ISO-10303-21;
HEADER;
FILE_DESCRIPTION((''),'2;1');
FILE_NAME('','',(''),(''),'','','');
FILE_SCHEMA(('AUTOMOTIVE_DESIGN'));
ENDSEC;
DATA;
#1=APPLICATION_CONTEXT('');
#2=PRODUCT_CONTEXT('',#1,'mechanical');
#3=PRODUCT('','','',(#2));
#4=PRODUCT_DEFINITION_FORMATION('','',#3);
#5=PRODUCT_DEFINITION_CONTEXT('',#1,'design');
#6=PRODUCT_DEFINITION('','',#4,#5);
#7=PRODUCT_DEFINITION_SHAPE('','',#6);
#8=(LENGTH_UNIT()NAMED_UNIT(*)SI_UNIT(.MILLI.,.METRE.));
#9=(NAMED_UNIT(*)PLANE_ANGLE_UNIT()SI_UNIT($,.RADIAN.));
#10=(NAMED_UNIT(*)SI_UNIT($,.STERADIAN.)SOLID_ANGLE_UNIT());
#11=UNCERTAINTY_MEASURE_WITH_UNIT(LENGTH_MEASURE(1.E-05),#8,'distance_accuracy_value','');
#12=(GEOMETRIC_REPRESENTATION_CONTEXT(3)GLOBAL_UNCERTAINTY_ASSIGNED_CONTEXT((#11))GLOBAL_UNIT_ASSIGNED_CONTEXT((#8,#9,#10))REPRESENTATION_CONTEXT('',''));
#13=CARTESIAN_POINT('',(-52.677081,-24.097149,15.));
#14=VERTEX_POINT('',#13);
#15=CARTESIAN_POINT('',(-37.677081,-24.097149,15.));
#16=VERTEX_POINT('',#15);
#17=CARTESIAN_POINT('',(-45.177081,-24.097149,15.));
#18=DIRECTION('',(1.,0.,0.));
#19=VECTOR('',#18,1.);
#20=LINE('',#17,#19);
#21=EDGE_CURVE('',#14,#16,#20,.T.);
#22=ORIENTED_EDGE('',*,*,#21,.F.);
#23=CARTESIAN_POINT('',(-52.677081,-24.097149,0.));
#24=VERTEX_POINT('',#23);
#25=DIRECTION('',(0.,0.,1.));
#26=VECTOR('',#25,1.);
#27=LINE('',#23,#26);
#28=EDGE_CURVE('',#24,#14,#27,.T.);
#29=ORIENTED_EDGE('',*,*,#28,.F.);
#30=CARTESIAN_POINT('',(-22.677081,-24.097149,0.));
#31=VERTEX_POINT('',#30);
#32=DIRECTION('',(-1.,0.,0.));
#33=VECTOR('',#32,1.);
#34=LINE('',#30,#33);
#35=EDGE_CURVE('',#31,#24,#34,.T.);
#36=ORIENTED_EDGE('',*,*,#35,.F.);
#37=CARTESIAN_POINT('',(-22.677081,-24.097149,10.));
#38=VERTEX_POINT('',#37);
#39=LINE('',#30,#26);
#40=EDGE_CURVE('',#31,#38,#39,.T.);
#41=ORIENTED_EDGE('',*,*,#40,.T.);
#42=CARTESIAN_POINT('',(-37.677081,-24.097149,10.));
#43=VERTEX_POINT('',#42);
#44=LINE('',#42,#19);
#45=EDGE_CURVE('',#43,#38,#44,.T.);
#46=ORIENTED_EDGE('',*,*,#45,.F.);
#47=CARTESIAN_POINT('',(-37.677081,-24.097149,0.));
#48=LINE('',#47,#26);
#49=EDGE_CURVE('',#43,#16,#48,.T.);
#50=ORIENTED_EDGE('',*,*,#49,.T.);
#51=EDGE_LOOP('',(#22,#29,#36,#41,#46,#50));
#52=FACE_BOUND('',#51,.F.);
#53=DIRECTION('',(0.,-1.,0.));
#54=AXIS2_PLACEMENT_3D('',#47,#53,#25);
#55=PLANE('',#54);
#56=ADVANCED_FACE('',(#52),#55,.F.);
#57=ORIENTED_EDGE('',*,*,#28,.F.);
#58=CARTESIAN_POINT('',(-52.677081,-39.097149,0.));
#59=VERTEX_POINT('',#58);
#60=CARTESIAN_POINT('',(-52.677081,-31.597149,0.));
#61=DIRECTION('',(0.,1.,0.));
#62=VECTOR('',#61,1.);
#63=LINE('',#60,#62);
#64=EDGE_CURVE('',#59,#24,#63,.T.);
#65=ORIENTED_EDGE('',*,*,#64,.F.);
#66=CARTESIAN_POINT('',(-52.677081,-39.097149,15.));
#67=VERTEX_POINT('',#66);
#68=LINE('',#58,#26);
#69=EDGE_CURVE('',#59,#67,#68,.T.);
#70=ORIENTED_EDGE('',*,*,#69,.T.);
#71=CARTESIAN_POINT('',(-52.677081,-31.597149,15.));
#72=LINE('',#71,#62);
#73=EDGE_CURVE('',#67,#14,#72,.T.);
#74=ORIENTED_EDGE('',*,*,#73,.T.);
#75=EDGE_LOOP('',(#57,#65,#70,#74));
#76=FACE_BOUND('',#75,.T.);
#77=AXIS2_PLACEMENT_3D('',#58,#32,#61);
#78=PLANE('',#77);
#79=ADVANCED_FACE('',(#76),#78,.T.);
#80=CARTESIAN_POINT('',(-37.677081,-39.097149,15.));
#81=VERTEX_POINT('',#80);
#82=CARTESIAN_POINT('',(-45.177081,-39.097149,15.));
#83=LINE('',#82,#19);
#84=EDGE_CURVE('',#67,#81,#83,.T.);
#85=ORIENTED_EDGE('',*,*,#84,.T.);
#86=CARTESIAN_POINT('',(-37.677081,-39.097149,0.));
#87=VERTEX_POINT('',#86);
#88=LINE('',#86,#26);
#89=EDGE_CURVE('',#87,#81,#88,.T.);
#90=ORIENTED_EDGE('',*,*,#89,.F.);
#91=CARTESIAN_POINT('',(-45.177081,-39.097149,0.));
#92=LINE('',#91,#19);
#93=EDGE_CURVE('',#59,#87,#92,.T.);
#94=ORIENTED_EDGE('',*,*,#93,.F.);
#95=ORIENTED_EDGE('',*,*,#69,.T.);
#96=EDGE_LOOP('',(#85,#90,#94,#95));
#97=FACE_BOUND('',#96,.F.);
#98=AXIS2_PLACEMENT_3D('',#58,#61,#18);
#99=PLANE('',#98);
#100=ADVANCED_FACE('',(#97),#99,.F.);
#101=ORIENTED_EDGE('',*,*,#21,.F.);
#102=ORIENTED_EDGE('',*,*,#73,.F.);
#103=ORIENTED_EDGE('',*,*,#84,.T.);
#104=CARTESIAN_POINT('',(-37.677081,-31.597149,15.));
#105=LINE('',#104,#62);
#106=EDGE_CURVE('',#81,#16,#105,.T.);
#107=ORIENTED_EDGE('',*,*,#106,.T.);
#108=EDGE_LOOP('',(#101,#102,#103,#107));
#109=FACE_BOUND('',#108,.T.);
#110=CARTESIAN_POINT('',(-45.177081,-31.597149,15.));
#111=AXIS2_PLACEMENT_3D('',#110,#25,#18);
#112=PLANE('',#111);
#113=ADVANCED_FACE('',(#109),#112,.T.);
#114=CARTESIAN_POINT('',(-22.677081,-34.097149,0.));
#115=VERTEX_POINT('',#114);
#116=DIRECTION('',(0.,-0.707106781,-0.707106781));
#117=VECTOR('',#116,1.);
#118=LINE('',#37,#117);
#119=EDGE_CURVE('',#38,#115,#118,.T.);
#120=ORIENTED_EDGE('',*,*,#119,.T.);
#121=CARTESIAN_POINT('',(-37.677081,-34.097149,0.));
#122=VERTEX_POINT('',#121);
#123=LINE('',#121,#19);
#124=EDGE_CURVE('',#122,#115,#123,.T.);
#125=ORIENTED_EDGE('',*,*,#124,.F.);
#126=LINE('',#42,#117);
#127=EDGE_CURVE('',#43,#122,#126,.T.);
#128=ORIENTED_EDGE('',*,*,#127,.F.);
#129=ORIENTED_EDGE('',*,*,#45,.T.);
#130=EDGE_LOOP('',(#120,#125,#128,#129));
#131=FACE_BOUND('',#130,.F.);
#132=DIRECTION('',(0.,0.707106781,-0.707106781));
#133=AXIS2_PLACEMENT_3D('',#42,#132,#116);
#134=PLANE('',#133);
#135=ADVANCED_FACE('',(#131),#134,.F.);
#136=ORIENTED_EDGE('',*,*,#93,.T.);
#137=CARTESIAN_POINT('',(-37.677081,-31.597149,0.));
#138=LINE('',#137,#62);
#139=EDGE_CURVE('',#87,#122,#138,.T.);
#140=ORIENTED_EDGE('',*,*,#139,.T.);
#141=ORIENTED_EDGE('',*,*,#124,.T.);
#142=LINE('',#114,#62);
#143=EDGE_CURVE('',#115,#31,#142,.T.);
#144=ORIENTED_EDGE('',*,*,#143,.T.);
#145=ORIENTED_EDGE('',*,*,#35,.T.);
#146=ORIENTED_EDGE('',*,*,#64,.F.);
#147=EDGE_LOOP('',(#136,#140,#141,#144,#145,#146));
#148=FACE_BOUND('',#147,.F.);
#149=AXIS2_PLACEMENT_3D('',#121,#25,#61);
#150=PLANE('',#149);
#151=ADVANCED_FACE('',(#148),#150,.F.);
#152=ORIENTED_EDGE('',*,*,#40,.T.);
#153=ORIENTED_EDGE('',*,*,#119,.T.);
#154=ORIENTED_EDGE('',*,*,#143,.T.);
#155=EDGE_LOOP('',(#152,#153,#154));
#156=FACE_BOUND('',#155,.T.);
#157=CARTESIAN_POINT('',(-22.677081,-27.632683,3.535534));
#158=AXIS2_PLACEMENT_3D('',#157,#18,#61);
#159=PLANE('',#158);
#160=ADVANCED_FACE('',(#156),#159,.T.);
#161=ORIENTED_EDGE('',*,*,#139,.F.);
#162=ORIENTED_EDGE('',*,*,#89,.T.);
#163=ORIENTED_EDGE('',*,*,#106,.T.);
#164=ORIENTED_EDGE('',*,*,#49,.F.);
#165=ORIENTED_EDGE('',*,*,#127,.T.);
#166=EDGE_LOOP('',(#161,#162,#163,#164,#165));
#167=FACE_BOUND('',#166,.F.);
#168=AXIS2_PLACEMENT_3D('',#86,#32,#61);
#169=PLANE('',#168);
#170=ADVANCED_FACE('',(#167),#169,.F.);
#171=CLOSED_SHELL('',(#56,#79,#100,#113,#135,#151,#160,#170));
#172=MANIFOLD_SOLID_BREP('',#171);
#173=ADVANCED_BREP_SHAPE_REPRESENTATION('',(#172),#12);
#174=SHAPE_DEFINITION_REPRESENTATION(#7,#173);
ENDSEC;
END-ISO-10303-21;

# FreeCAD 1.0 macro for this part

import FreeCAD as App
import Part
import Sketcher

V = App.Vector
Q = App.Units.Quantity

doc = App.newDocument("Part")
body = doc.addObject("PartDesign::Body", "Body")

sketch1 = body.newObject("Sketcher::SketchObject", "Sketch")
sketch1.AttachmentSupport = (doc.getObject("XY_Plane"), [""])
sketch1.MapMode = "FlatFace"
sketch1.addGeometry(Part.LineSegment(V(-53, -24, 0), V(-53, -39, 0)), False)
sketch1.addGeometry(Part.LineSegment(V(-53, -39, 0), V(-38, -39, 0)), False)
sketch1.addGeometry(Part.LineSegment(V(-38, -39, 0), V(-38, -24, 0)), False)
sketch1.addGeometry(Part.LineSegment(V(-38, -24, 0), V(-53, -24, 0)), False)
sketch1.addConstraint(Sketcher.Constraint("Coincident", 0, 2, 1, 1))
sketch1.addConstraint(Sketcher.Constraint("Coincident", 1, 2, 2, 1))
sketch1.addConstraint(Sketcher.Constraint("Coincident", 2, 2, 3, 1))
sketch1.addConstraint(Sketcher.Constraint("Coincident", 3, 2, 0, 1))
sketch1.addConstraint(Sketcher.Constraint("Vertical", 0))
sketch1.addConstraint(Sketcher.Constraint("Horizontal", 1))
sketch1.addConstraint(Sketcher.Constraint("Vertical", 2))
sketch1.addConstraint(Sketcher.Constraint("Horizontal", 3))
sketch1.addConstraint(Sketcher.Constraint("Equal", 3, 0))
sketch1.addConstraint(Sketcher.Constraint("DistanceX", 1, 1, 1, 2, Q("15 mm")))
sketch1.addConstraint(Sketcher.Constraint("DistanceX", 0, 2, -1, 1, Q("52.677081 mm")))
sketch1.addConstraint(Sketcher.Constraint("DistanceY", 0, 2, -1, 1, Q("39.097149 mm")))
pad1 = body.newObject("PartDesign::Pad", "Pad")
pad1.Profile = sketch1
pad1.Length = 15

sketch2 = body.newObject("Sketcher::SketchObject", "Sketch001")
sketch2.AttachmentSupport = (doc.getObject("YZ_Plane"), [""])
sketch2.MapMode = "FlatFace"
sketch2.AttachmentOffset = App.Placement(V(0, 0, -37.677081), App.Rotation())
sketch2.addGeometry(Part.LineSegment(V(-24, 0, 0), V(-24, 10, 0)), False)
sketch2.addGeometry(Part.LineSegment(V(-24, 10, 0), V(-34, 0, 0)), False)
sketch2.addGeometry(Part.LineSegment(V(-34, 0, 0), V(-24, 0, 0)), False)
sketch2.addConstraint(Sketcher.Constraint("Coincident", 0, 2, 1, 1))
sketch2.addConstraint(Sketcher.Constraint("Coincident", 1, 2, 2, 1))
sketch2.addConstraint(Sketcher.Constraint("Coincident", 2, 2, 0, 1))
sketch2.addConstraint(Sketcher.Constraint("Vertical", 0))
sketch2.addConstraint(Sketcher.Constraint("Horizontal", 2))
sketch2.addConstraint(Sketcher.Constraint("PointOnObject", 1, 2, -1))
sketch2.addConstraint(Sketcher.Constraint("Equal", 2, 0))
sketch2.addConstraint(Sketcher.Constraint("DistanceX", 2, 1, 2, 2, Q("10 mm")))
sketch2.addConstraint(Sketcher.Constraint("DistanceX", 0, 2, -1, 1, Q("24.097149 mm")))
pad2 = body.newObject("PartDesign::Pad", "Pad001")
pad2.Profile = sketch2
pad2.Length = 15

doc.recompute()
